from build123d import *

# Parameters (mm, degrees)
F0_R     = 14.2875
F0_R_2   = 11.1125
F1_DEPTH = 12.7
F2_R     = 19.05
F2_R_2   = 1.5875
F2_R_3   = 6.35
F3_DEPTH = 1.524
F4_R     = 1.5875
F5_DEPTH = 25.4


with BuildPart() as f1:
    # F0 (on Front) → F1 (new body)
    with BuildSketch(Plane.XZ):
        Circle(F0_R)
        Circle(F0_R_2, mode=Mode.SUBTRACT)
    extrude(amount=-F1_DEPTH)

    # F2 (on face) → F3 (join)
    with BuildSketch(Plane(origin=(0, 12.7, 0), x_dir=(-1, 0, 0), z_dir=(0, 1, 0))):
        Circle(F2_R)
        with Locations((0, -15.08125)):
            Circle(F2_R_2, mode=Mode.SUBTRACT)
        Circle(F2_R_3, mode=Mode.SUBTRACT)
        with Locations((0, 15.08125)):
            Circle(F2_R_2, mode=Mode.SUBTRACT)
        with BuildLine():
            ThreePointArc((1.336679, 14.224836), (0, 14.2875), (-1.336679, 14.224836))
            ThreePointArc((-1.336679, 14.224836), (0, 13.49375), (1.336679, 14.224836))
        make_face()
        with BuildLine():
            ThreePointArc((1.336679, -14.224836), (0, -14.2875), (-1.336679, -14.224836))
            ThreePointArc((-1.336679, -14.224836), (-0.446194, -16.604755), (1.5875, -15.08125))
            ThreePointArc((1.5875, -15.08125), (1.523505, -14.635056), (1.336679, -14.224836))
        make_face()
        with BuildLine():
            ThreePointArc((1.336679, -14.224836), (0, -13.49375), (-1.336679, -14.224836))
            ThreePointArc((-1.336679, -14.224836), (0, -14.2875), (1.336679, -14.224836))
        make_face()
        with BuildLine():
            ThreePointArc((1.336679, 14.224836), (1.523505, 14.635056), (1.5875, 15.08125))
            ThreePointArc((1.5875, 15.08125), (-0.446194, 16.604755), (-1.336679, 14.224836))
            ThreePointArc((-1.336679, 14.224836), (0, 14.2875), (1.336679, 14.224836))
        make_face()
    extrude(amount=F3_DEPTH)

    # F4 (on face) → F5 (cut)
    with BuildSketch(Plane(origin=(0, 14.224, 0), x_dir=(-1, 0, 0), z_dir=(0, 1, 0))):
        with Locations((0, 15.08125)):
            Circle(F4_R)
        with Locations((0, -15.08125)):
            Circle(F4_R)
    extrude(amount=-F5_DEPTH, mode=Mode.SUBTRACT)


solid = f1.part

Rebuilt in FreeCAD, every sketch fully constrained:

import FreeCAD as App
import Part
import Sketcher
from FreeCAD import Vector
Q = App.Units.Quantity

doc = App.newDocument("Part")
body = doc.addObject("PartDesign::Body", "Body")

# Sketch on XZ plane
sketch1 = doc.addObject("Sketcher::SketchObject", "Sketch")
body.addObject(sketch1)
sketch1.AttachmentSupport = (doc.XZ_Plane, [""])
sketch1.MapMode = "FlatFace"
sketch1.addGeometry(Part.Circle(Vector(0, 0, 0), Vector(0, 0, 1), 14.2875), False)
sketch1.addGeometry(Part.Circle(Vector(0, 0, 0), Vector(0, 0, 1), 11.1125), False)
sketch1.addConstraint(Sketcher.Constraint("Coincident", 0, 3, -1, 1))
sketch1.addConstraint(Sketcher.Constraint("Coincident", 1, 3, -1, 1))
sketch1.addConstraint(Sketcher.Constraint("Diameter", 0, Q("1.125 in")))
sketch1.addConstraint(Sketcher.Constraint("Diameter", 1, Q("0.875 in")))
pad1 = doc.addObject("PartDesign::Pad", "Pad")
body.addObject(pad1)
pad1.Profile = sketch1
pad1.Length = Q("0.5 in")
pad1.Reversed = True

# Sketch on XZ plane
sketch2 = doc.addObject("Sketcher::SketchObject", "Sketch001")
body.addObject(sketch2)
sketch2.AttachmentSupport = (doc.XZ_Plane, [""])
sketch2.MapMode = "FlatFace"
sketch2.AttachmentOffset = App.Placement(Vector(0, 0, -0.5 * 25.4), App.Rotation())
sketch2.addGeometry(Part.Circle(Vector(0, 0, 0), Vector(0, 0, 1), 19.05), False)
sketch2.addGeometry(Part.Circle(Vector(0, 0, 0), Vector(0, 0, 1), 6.35), False)
sketch2.addConstraint(Sketcher.Constraint("Coincident", 0, 3, -1, 1))
sketch2.addConstraint(Sketcher.Constraint("Coincident", 1, 3, -1, 1))
sketch2.addConstraint(Sketcher.Constraint("Diameter", 0, Q("1.5 in")))
sketch2.addConstraint(Sketcher.Constraint("Diameter", 1, Q("0.5 in")))
pad2 = doc.addObject("PartDesign::Pad", "Pad001")
body.addObject(pad2)
pad2.Profile = sketch2
pad2.Length = Q("0.06 in")
pad2.Reversed = True

# Sketch on XZ plane
sketch3 = doc.addObject("Sketcher::SketchObject", "Sketch002")
body.addObject(sketch3)
sketch3.AttachmentSupport = (doc.XZ_Plane, [""])
sketch3.MapMode = "FlatFace"
sketch3.AttachmentOffset = App.Placement(Vector(0, 0, -0.56 * 25.4), App.Rotation())
sketch3.addGeometry(Part.Circle(Vector(0, 15.08125, 0), Vector(0, 0, 1), 1.5875), False)
sketch3.addGeometry(Part.Circle(Vector(0, -15.08125, 0), Vector(0, 0, 1), 1.5875), False)
sketch3.addConstraint(Sketcher.Constraint("Equal", 0, 1))
sketch3.addConstraint(Sketcher.Constraint("Symmetric", 0, 3, 1, 3, -1, 1))
sketch3.addConstraint(Sketcher.Constraint("PointOnObject", 0, 3, -2))
sketch3.addConstraint(Sketcher.Constraint("Diameter", 0, Q("0.125 in")))
sketch3.addConstraint(Sketcher.Constraint("DistanceY", -1, 1, 0, 3, Q("0.59375 in")))
pocket1 = doc.addObject("PartDesign::Pocket", "Pocket")
body.addObject(pocket1)
pocket1.Profile = sketch3
pocket1.Length = Q("1 in")
pocket1.Reversed = True

doc.recompute()
